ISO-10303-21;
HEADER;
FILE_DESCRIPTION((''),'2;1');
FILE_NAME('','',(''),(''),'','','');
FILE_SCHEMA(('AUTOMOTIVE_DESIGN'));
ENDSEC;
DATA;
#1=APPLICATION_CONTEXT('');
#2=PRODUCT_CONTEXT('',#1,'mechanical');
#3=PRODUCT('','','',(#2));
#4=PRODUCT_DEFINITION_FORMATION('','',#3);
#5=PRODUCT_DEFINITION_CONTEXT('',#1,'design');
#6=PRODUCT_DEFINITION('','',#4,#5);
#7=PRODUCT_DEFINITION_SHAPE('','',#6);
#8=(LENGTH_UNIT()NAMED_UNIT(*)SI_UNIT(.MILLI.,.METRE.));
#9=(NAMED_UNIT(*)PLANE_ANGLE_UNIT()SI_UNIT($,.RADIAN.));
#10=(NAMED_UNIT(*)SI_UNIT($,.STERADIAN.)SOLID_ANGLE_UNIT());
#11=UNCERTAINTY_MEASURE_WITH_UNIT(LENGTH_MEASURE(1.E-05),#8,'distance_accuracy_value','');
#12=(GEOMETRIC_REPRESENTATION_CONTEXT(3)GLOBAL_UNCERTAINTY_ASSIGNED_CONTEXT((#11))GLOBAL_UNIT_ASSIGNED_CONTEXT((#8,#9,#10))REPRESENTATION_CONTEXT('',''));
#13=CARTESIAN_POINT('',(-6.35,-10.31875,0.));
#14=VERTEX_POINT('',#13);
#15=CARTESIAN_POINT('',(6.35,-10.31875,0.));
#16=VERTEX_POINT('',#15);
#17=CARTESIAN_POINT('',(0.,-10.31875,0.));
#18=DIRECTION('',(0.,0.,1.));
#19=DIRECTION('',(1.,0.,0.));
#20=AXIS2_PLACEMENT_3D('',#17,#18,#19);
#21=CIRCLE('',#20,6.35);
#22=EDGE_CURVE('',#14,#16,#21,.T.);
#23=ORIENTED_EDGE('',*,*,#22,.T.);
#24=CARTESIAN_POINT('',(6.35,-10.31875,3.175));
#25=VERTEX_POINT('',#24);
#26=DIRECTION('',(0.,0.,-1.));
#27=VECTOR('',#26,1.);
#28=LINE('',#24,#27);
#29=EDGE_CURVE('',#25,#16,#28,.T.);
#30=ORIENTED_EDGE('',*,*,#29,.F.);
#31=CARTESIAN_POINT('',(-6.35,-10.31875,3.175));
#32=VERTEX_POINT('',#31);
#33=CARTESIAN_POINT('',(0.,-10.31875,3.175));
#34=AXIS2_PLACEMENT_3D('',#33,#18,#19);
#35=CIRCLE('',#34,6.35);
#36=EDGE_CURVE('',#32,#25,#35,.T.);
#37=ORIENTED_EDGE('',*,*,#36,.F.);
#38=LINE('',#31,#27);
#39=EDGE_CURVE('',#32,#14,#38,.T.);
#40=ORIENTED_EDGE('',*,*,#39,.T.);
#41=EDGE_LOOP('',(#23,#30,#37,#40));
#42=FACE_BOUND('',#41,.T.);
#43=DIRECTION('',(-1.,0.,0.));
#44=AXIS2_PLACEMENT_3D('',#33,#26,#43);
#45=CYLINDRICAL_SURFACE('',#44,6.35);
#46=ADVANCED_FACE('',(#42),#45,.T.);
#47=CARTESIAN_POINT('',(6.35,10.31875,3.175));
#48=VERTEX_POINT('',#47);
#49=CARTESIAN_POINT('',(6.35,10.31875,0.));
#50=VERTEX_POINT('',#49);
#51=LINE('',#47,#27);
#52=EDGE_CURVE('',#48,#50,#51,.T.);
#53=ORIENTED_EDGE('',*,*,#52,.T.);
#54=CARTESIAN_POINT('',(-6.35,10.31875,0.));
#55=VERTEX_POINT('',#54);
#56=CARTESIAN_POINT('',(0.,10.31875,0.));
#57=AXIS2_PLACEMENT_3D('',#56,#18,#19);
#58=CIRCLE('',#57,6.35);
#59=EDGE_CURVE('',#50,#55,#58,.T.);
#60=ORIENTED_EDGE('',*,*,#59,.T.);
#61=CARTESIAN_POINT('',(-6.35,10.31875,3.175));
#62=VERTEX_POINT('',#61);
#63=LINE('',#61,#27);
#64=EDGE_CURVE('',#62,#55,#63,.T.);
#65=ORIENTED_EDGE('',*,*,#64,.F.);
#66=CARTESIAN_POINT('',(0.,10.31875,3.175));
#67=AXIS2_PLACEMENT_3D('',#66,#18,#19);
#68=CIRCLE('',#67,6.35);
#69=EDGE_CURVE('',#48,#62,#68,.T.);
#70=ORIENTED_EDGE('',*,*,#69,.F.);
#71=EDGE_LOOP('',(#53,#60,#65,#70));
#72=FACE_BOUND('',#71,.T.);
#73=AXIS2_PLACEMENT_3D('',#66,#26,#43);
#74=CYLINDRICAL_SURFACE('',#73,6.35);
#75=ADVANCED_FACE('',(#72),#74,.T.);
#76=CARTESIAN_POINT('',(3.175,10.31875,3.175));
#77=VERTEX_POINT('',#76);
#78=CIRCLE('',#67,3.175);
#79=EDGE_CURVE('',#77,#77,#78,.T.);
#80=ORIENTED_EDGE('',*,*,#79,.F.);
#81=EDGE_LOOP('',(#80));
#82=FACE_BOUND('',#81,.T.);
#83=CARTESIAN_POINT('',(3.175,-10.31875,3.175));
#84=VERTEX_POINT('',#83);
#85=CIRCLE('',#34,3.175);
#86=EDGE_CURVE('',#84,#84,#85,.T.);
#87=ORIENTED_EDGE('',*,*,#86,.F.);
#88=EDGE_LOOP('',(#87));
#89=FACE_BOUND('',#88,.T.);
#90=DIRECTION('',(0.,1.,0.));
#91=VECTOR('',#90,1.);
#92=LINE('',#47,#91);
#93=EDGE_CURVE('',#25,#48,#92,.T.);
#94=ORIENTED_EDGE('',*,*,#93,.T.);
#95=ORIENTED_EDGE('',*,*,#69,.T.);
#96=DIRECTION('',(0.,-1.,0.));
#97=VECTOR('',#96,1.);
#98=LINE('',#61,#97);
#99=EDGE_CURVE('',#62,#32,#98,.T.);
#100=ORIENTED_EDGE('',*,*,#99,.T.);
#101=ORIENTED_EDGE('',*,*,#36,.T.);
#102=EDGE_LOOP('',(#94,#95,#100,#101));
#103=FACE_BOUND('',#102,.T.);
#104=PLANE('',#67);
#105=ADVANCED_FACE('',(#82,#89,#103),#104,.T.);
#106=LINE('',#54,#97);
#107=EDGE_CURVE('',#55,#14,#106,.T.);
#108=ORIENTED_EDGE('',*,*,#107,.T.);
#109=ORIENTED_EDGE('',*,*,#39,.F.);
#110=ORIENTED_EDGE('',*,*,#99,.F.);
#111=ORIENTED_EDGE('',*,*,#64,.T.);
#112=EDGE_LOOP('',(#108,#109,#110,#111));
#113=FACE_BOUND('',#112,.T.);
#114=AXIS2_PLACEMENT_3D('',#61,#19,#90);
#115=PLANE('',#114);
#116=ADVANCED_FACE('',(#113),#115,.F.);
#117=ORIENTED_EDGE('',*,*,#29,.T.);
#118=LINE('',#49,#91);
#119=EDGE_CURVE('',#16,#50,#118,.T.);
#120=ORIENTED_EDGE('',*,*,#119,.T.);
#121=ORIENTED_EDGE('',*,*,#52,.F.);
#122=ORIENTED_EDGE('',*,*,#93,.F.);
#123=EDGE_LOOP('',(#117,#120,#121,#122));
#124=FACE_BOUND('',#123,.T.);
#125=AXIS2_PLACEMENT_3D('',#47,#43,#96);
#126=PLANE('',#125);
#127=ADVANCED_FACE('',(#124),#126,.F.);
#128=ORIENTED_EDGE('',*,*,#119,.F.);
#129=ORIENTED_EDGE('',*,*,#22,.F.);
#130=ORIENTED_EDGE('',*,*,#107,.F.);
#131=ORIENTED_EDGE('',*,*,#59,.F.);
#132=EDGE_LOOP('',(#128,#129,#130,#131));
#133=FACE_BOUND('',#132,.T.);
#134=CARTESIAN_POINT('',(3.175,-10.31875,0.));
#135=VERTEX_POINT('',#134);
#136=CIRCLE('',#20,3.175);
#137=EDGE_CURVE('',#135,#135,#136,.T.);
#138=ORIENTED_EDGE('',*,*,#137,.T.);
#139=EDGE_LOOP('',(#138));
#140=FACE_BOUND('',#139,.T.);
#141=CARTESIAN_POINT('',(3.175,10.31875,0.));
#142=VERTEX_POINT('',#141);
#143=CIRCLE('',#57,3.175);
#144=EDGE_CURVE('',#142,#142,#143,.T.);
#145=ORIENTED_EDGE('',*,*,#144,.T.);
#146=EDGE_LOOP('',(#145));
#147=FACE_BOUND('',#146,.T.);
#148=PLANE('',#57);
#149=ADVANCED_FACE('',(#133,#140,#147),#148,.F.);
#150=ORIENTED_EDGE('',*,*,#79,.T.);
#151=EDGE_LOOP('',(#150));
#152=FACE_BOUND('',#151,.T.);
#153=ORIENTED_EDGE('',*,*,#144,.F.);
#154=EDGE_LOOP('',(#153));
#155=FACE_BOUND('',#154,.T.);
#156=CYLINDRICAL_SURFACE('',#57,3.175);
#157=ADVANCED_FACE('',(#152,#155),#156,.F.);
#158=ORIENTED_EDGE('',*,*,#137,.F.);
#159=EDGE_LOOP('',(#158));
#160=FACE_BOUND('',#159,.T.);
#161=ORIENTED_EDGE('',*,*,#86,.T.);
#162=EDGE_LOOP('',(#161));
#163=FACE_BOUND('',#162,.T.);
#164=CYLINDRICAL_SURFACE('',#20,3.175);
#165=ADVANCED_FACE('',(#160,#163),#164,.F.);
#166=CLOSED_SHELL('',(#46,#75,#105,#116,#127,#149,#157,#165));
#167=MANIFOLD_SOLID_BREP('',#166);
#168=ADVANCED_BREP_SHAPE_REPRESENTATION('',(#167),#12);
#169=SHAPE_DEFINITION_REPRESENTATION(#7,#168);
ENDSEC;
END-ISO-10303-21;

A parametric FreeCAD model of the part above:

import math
import FreeCAD as App
import Part
import Sketcher
from FreeCAD import Vector
Q = App.Units.Quantity

doc = App.newDocument("Part")
params = doc.addObject("Spreadsheet::Sheet", "Params")
for row, (alias, value) in enumerate([
    ("sketch1_radius", "0.25 in"),
    ("sketch1_height", "0.8125 in"),
    ("pad1_length", "0.125 in"),
    ("sketch2_diameter", "0.25 in"),
    ("pocket1_length", "0.125 in"),
], start=1):
    params.set(f"A{row}", alias)
    params.set(f"B{row}", "=" + value)
    params.setAlias(f"B{row}", alias)

body = doc.addObject("PartDesign::Body", "Body")

sketch1 = body.newObject("Sketcher::SketchObject", "Sketch")
sketch1.AttachmentSupport = (doc.getObject("XY_Plane"), [""])
sketch1.MapMode = "FlatFace"
sketch1.addGeometry(Part.LineSegment(Vector(6, -10, 0), Vector(6, 10, 0)), False)
sketch1.addGeometry(Part.ArcOfCircle(Part.Circle(Vector(0, 10, 0), Vector(0, 0, 1), 6), math.radians(0), math.radians(180)), False)
sketch1.addGeometry(Part.LineSegment(Vector(-6, 10, 0), Vector(-6, -10, 0)), False)
sketch1.addGeometry(Part.ArcOfCircle(Part.Circle(Vector(0, -10, 0), Vector(0, 0, 1), 6), math.radians(180), math.radians(360)), False)
sketch1.addConstraint(Sketcher.Constraint("Tangent", 0, 2, 1, 1))
sketch1.addConstraint(Sketcher.Constraint("Tangent", 1, 2, 2, 1))
sketch1.addConstraint(Sketcher.Constraint("Tangent", 2, 2, 3, 1))
sketch1.addConstraint(Sketcher.Constraint("Tangent", 3, 2, 0, 1))
sketch1.addConstraint(Sketcher.Constraint("Vertical", 0))
sketch1.addConstraint(Sketcher.Constraint("Vertical", 2))
sketch1.addConstraint(Sketcher.Constraint("Symmetric", 1, 3, 3, 3, -1, 1))
sketch1.addConstraint(Sketcher.Constraint("Radius", 1, Q("0.25 in")))
sketch1.addConstraint(Sketcher.Constraint("DistanceY", 0, 1, 0, 2, Q("0.8125 in")))
sketch1.setExpression("Constraints[7]", "Params.sketch1_radius")
sketch1.setExpression("Constraints[8]", "Params.sketch1_height")
pad1 = body.newObject("PartDesign::Pad", "Pad")
pad1.Profile = sketch1
pad1.setExpression("Length", "Params.pad1_length")

sketch2 = body.newObject("Sketcher::SketchObject", "Sketch001")
sketch2.AttachmentSupport = (doc.getObject("XY_Plane"), [""])
sketch2.MapMode = "FlatFace"
sketch2.AttachmentOffset = App.Placement(Vector(0, 0, 0.125 * 25.4), App.Rotation())
sketch2.addGeometry(Part.Circle(Vector(0, 10.3, 0), Vector(0, 0, 1), 3.2), False)
sketch2.addGeometry(Part.Circle(Vector(0, -10.3, 0), Vector(0, 0, 1), 3.2), False)
sketch2.addConstraint(Sketcher.Constraint("Equal", 0, 1))
sketch2.addConstraint(Sketcher.Constraint("Symmetric", 0, 3, 1, 3, -1, 1))
sketch2.addConstraint(Sketcher.Constraint("PointOnObject", 0, 3, -2))
sketch2.addConstraint(Sketcher.Constraint("Diameter", 0, Q("0.25 in")))
sketch2.addConstraint(Sketcher.Constraint("DistanceY", -1, 1, 0, 3, Q("0.40625 in")))
sketch2.setExpression("Constraints[3]", "Params.sketch2_diameter")
pocket1 = body.newObject("PartDesign::Pocket", "Pocket")
pocket1.Profile = sketch2
pocket1.setExpression("Length", "Params.pocket1_length")

doc.recompute()
